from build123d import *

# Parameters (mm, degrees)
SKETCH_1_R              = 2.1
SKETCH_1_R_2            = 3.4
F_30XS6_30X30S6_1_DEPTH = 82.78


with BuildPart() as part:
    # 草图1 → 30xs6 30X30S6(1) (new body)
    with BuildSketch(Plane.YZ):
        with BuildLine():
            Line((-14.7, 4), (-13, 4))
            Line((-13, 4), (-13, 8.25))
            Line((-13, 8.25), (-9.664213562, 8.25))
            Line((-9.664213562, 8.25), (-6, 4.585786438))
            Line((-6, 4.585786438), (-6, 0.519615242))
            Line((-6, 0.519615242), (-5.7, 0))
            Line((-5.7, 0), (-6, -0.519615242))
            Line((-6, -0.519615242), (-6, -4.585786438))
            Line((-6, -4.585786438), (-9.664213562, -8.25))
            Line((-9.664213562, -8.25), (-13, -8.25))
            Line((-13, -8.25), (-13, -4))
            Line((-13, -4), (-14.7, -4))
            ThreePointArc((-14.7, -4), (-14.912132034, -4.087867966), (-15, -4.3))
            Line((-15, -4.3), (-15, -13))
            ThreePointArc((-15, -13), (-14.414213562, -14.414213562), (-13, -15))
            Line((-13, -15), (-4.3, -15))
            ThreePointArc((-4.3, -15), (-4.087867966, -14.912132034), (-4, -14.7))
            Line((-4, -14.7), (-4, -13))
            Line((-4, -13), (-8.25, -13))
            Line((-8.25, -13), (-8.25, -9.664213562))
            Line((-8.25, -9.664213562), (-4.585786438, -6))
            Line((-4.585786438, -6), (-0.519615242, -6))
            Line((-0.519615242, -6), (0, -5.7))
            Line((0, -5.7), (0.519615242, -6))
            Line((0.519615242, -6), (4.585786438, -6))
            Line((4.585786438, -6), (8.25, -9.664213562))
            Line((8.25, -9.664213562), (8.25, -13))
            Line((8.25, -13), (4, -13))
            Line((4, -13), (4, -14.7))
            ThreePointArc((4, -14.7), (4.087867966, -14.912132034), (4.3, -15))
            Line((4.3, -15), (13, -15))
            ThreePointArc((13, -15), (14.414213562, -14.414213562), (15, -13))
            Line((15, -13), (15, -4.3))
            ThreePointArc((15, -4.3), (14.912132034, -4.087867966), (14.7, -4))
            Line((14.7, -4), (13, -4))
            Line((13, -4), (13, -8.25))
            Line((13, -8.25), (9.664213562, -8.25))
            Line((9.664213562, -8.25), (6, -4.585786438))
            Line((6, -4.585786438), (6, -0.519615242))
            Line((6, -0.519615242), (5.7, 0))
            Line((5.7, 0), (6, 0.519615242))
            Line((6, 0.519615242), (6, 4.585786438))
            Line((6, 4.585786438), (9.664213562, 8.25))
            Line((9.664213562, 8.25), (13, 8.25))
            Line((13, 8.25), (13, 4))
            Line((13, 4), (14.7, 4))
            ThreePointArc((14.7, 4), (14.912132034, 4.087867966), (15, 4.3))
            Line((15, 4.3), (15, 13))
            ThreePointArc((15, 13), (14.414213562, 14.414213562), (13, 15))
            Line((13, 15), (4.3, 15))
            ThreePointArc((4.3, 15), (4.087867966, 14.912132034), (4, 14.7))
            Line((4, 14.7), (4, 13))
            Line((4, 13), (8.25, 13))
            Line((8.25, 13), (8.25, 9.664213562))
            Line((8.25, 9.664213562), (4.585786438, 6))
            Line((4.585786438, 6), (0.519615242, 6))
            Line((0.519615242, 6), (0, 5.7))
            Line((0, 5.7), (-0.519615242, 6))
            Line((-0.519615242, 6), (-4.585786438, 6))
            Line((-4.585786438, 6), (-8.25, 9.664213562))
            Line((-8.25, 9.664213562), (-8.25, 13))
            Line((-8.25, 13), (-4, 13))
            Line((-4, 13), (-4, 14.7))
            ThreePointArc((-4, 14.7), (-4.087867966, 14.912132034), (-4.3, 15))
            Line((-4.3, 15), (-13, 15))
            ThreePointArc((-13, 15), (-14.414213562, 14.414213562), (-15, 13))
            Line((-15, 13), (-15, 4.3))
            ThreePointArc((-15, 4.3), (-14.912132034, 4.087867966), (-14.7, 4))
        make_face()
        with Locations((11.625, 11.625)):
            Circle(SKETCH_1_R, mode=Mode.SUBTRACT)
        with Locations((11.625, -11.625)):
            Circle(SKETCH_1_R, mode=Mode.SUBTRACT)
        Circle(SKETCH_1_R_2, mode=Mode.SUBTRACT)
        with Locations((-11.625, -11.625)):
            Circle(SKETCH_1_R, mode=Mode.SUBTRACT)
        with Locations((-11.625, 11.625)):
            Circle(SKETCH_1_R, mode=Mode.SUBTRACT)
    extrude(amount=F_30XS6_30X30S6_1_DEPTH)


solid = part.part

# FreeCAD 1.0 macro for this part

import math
import FreeCAD as App
import Part
import Sketcher

V = App.Vector
Q = App.Units.Quantity

doc = App.newDocument("Part")
body = doc.addObject("PartDesign::Body", "Body")

# Sketch on YZ plane
sketch1 = body.newObject("Sketcher::SketchObject", "Sketch")
sketch1.AttachmentSupport = (doc.getObject("YZ_Plane"), [""])
sketch1.MapMode = "FlatFace"
sketch1.addGeometry([
    Part.LineSegment(V(-14.7, 4, 0), V(-13, 4, 0)),  # 0
    Part.LineSegment(V(-13, 4, 0), V(-13, 8.25, 0)),  # 1
    Part.LineSegment(V(-13, 8.25, 0), V(-9.664214, 8.25, 0)),  # 2
    Part.LineSegment(V(-9.664214, 8.25, 0), V(-6, 4.585786, 0)),  # 3
    Part.LineSegment(V(-6, 4.585786, 0), V(-6, 0.519615, 0)),  # 4
    Part.LineSegment(V(-6, 0.519615, 0), V(-5.7, 0, 0)),  # 5
    Part.LineSegment(V(-5.7, 0, 0), V(-6, -0.519615, 0)),  # 6
    Part.LineSegment(V(-6, -0.519615, 0), V(-6, -4.585786, 0)),  # 7
    Part.LineSegment(V(-6, -4.585786, 0), V(-9.664214, -8.25, 0)),  # 8
    Part.LineSegment(V(-9.664214, -8.25, 0), V(-13, -8.25, 0)),  # 9
    Part.LineSegment(V(-13, -8.25, 0), V(-13, -4, 0)),  # 10
    Part.LineSegment(V(-13, -4, 0), V(-14.7, -4, 0)),  # 11
    Part.ArcOfCircle(Part.Circle(V(-14.7, -4.3, 0), V(0, 0, 1), 0.3), math.radians(90), math.radians(180)),  # 12
    Part.LineSegment(V(-15, -4.3, 0), V(-15, -13, 0)),  # 13
    Part.ArcOfCircle(Part.Circle(V(-13, -13, 0), V(0, 0, 1), 2), math.radians(-180), math.radians(-90)),  # 14
    Part.LineSegment(V(-13, -15, 0), V(-4.3, -15, 0)),  # 15
    Part.ArcOfCircle(Part.Circle(V(-4.3, -14.7, 0), V(0, 0, 1), 0.3), math.radians(-90), math.radians(0)),  # 16
    Part.LineSegment(V(-4, -14.7, 0), V(-4, -13, 0)),  # 17
    Part.LineSegment(V(-4, -13, 0), V(-8.25, -13, 0)),  # 18
    Part.LineSegment(V(-8.25, -13, 0), V(-8.25, -9.664214, 0)),  # 19
    Part.LineSegment(V(-8.25, -9.664214, 0), V(-4.585786, -6, 0)),  # 20
    Part.LineSegment(V(-4.585786, -6, 0), V(-0.519615, -6, 0)),  # 21
    Part.LineSegment(V(-0.519615, -6, 0), V(0, -5.7, 0)),  # 22
    Part.LineSegment(V(0, -5.7, 0), V(0.519615, -6, 0)),  # 23
    Part.LineSegment(V(0.519615, -6, 0), V(4.585786, -6, 0)),  # 24
    Part.LineSegment(V(4.585786, -6, 0), V(8.25, -9.664214, 0)),  # 25
    Part.LineSegment(V(8.25, -9.664214, 0), V(8.25, -13, 0)),  # 26
    Part.LineSegment(V(8.25, -13, 0), V(4, -13, 0)),  # 27
    Part.LineSegment(V(4, -13, 0), V(4, -14.7, 0)),  # 28
    Part.ArcOfCircle(Part.Circle(V(4.3, -14.7, 0), V(0, 0, 1), 0.3), math.radians(-180), math.radians(-90)),  # 29
    Part.LineSegment(V(4.3, -15, 0), V(13, -15, 0)),  # 30
    Part.ArcOfCircle(Part.Circle(V(13, -13, 0), V(0, 0, 1), 2), math.radians(-90), math.radians(0)),  # 31
    Part.LineSegment(V(15, -13, 0), V(15, -4.3, 0)),  # 32
    Part.ArcOfCircle(Part.Circle(V(14.7, -4.3, 0), V(0, 0, 1), 0.3), math.radians(0), math.radians(90)),  # 33
    Part.LineSegment(V(14.7, -4, 0), V(13, -4, 0)),  # 34
    Part.LineSegment(V(13, -4, 0), V(13, -8.25, 0)),  # 35
    Part.LineSegment(V(13, -8.25, 0), V(9.664214, -8.25, 0)),  # 36
    Part.LineSegment(V(9.664214, -8.25, 0), V(6, -4.585786, 0)),  # 37
    Part.LineSegment(V(6, -4.585786, 0), V(6, -0.519615, 0)),  # 38
    Part.LineSegment(V(6, -0.519615, 0), V(5.7, 0, 0)),  # 39
    Part.LineSegment(V(5.7, 0, 0), V(6, 0.519615, 0)),  # 40
    Part.LineSegment(V(6, 0.519615, 0), V(6, 4.585786, 0)),  # 41
    Part.LineSegment(V(6, 4.585786, 0), V(9.664214, 8.25, 0)),  # 42
    Part.LineSegment(V(9.664214, 8.25, 0), V(13, 8.25, 0)),  # 43
    Part.LineSegment(V(13, 8.25, 0), V(13, 4, 0)),  # 44
    Part.LineSegment(V(13, 4, 0), V(14.7, 4, 0)),  # 45
    Part.ArcOfCircle(Part.Circle(V(14.7, 4.3, 0), V(0, 0, 1), 0.3), math.radians(-90), math.radians(0)),  # 46
    Part.LineSegment(V(15, 4.3, 0), V(15, 13, 0)),  # 47
    Part.ArcOfCircle(Part.Circle(V(13, 13, 0), V(0, 0, 1), 2), math.radians(0), math.radians(90)),  # 48
    Part.LineSegment(V(13, 15, 0), V(4.3, 15, 0)),  # 49
    Part.ArcOfCircle(Part.Circle(V(4.3, 14.7, 0), V(0, 0, 1), 0.3), math.radians(90), math.radians(180)),  # 50
    Part.LineSegment(V(4, 14.7, 0), V(4, 13, 0)),  # 51
    Part.LineSegment(V(4, 13, 0), V(8.25, 13, 0)),  # 52
    Part.LineSegment(V(8.25, 13, 0), V(8.25, 9.664214, 0)),  # 53
    Part.LineSegment(V(8.25, 9.664214, 0), V(4.585786, 6, 0)),  # 54
    Part.LineSegment(V(4.585786, 6, 0), V(0.519615, 6, 0)),  # 55
    Part.LineSegment(V(0.519615, 6, 0), V(0, 5.7, 0)),  # 56
    Part.LineSegment(V(0, 5.7, 0), V(-0.519615, 6, 0)),  # 57
    Part.LineSegment(V(-0.519615, 6, 0), V(-4.585786, 6, 0)),  # 58
    Part.LineSegment(V(-4.585786, 6, 0), V(-8.25, 9.664214, 0)),  # 59
    Part.LineSegment(V(-8.25, 9.664214, 0), V(-8.25, 13, 0)),  # 60
    Part.LineSegment(V(-8.25, 13, 0), V(-4, 13, 0)),  # 61
    Part.LineSegment(V(-4, 13, 0), V(-4, 14.7, 0)),  # 62
    Part.ArcOfCircle(Part.Circle(V(-4.3, 14.7, 0), V(0, 0, 1), 0.3), math.radians(0), math.radians(90)),  # 63
    Part.LineSegment(V(-4.3, 15, 0), V(-13, 15, 0)),  # 64
    Part.ArcOfCircle(Part.Circle(V(-13, 13, 0), V(0, 0, 1), 2), math.radians(90), math.radians(180)),  # 65
    Part.LineSegment(V(-15, 13, 0), V(-15, 4.3, 0)),  # 66
    Part.ArcOfCircle(Part.Circle(V(-14.7, 4.3, 0), V(0, 0, 1), 0.3), math.radians(-180), math.radians(-90)),  # 67
    Part.Circle(V(-11.625, -11.625, 0), V(0, 0, 1), 2.1),  # 68
    Part.Circle(V(11.625, -11.625, 0), V(0, 0, 1), 2.1),  # 69
    Part.Circle(V(-11.625, 11.625, 0), V(0, 0, 1), 2.1),  # 70
    Part.Circle(V(0, 0, 0), V(0, 0, 1), 3.4),  # 71
    Part.Circle(V(11.625, 11.625, 0), V(0, 0, 1), 2.1),  # 72
], False)
sketch1.addConstraint([
    Sketcher.Constraint("Coincident", 0, 2, 1, 1),
    Sketcher.Constraint("Coincident", 1, 2, 2, 1),
    Sketcher.Constraint("Coincident", 2, 2, 3, 1),
    Sketcher.Constraint("Coincident", 3, 2, 4, 1),
    Sketcher.Constraint("Coincident", 4, 2, 5, 1),
    Sketcher.Constraint("Coincident", 5, 2, 6, 1),
    Sketcher.Constraint("Coincident", 6, 2, 7, 1),
    Sketcher.Constraint("Coincident", 7, 2, 8, 1),
    Sketcher.Constraint("Coincident", 8, 2, 9, 1),
    Sketcher.Constraint("Coincident", 9, 2, 10, 1),
    Sketcher.Constraint("Coincident", 10, 2, 11, 1),
    Sketcher.Constraint("Tangent", 11, 2, 12, 1),
    Sketcher.Constraint("Tangent", 12, 2, 13, 1),
    Sketcher.Constraint("Tangent", 13, 2, 14, 1),
    Sketcher.Constraint("Tangent", 14, 2, 15, 1),
    Sketcher.Constraint("Tangent", 15, 2, 16, 1),
    Sketcher.Constraint("Tangent", 16, 2, 17, 1),
    Sketcher.Constraint("Coincident", 17, 2, 18, 1),
    Sketcher.Constraint("Coincident", 18, 2, 19, 1),
    Sketcher.Constraint("Coincident", 19, 2, 20, 1),
    Sketcher.Constraint("Coincident", 20, 2, 21, 1),
    Sketcher.Constraint("Coincident", 21, 2, 22, 1),
    Sketcher.Constraint("Coincident", 22, 2, 23, 1),
    Sketcher.Constraint("Coincident", 23, 2, 24, 1),
    Sketcher.Constraint("Coincident", 24, 2, 25, 1),
    Sketcher.Constraint("Coincident", 25, 2, 26, 1),
    Sketcher.Constraint("Coincident", 26, 2, 27, 1),
    Sketcher.Constraint("Coincident", 27, 2, 28, 1),
    Sketcher.Constraint("Tangent", 28, 2, 29, 1),
    Sketcher.Constraint("Tangent", 29, 2, 30, 1),
    Sketcher.Constraint("Tangent", 30, 2, 31, 1),
    Sketcher.Constraint("Tangent", 31, 2, 32, 1),
    Sketcher.Constraint("Tangent", 32, 2, 33, 1),
    Sketcher.Constraint("Tangent", 33, 2, 34, 1),
    Sketcher.Constraint("Coincident", 34, 2, 35, 1),
    Sketcher.Constraint("Coincident", 35, 2, 36, 1),
    Sketcher.Constraint("Coincident", 36, 2, 37, 1),
    Sketcher.Constraint("Coincident", 37, 2, 38, 1),
    Sketcher.Constraint("Coincident", 38, 2, 39, 1),
    Sketcher.Constraint("Coincident", 39, 2, 40, 1),
    Sketcher.Constraint("Coincident", 40, 2, 41, 1),
    Sketcher.Constraint("Coincident", 41, 2, 42, 1),
    Sketcher.Constraint("Coincident", 42, 2, 43, 1),
    Sketcher.Constraint("Coincident", 43, 2, 44, 1),
    Sketcher.Constraint("Coincident", 44, 2, 45, 1),
    Sketcher.Constraint("Tangent", 45, 2, 46, 1),
    Sketcher.Constraint("Tangent", 46, 2, 47, 1),
    Sketcher.Constraint("Tangent", 47, 2, 48, 1),
    Sketcher.Constraint("Tangent", 48, 2, 49, 1),
    Sketcher.Constraint("Tangent", 49, 2, 50, 1),
    Sketcher.Constraint("Tangent", 50, 2, 51, 1),
    Sketcher.Constraint("Coincident", 51, 2, 52, 1),
    Sketcher.Constraint("Coincident", 52, 2, 53, 1),
    Sketcher.Constraint("Coincident", 53, 2, 54, 1),
    Sketcher.Constraint("Coincident", 54, 2, 55, 1),
    Sketcher.Constraint("Coincident", 55, 2, 56, 1),
    Sketcher.Constraint("Coincident", 56, 2, 57, 1),
    Sketcher.Constraint("Coincident", 57, 2, 58, 1),
    Sketcher.Constraint("Coincident", 58, 2, 59, 1),
    Sketcher.Constraint("Coincident", 59, 2, 60, 1),
    Sketcher.Constraint("Coincident", 60, 2, 61, 1),
    Sketcher.Constraint("Coincident", 61, 2, 62, 1),
    Sketcher.Constraint("Tangent", 62, 2, 63, 1),
    Sketcher.Constraint("Tangent", 63, 2, 64, 1),
    Sketcher.Constraint("Tangent", 64, 2, 65, 1),
    Sketcher.Constraint("Tangent", 65, 2, 66, 1),
    Sketcher.Constraint("Tangent", 66, 2, 67, 1),
    Sketcher.Constraint("Tangent", 67, 2, 0, 1),
    Sketcher.Constraint("Horizontal", 0),
    Sketcher.Constraint("Vertical", 1),
    Sketcher.Constraint("Horizontal", 2),
    Sketcher.Constraint("Vertical", 4),
    Sketcher.Constraint("Vertical", 7),
    Sketcher.Constraint("Horizontal", 9),
    Sketcher.Constraint("Vertical", 10),
    Sketcher.Constraint("Horizontal", 11),
    Sketcher.Constraint("Vertical", 13),
    Sketcher.Constraint("Horizontal", 15),
    Sketcher.Constraint("Vertical", 17),
    Sketcher.Constraint("Horizontal", 18),
    Sketcher.Constraint("Vertical", 19),
    Sketcher.Constraint("Horizontal", 21),
    Sketcher.Constraint("Horizontal", 24),
    Sketcher.Constraint("Vertical", 26),
    Sketcher.Constraint("Horizontal", 27),
    Sketcher.Constraint("Vertical", 28),
    Sketcher.Constraint("Horizontal", 30),
    Sketcher.Constraint("Vertical", 32),
    Sketcher.Constraint("Horizontal", 34),
    Sketcher.Constraint("Vertical", 35),
    Sketcher.Constraint("Horizontal", 36),
    Sketcher.Constraint("Vertical", 38),
    Sketcher.Constraint("Vertical", 41),
    Sketcher.Constraint("Horizontal", 43),
    Sketcher.Constraint("Vertical", 44),
    Sketcher.Constraint("Horizontal", 45),
    Sketcher.Constraint("Vertical", 47),
    Sketcher.Constraint("Horizontal", 49),
    Sketcher.Constraint("Vertical", 51),
    Sketcher.Constraint("Horizontal", 52),
    Sketcher.Constraint("Vertical", 53),
    Sketcher.Constraint("Horizontal", 55),
    Sketcher.Constraint("Horizontal", 58),
    Sketcher.Constraint("Vertical", 60),
    Sketcher.Constraint("Horizontal", 61),
    Sketcher.Constraint("Vertical", 62),
    Sketcher.Constraint("Horizontal", 64),
    Sketcher.Constraint("Vertical", 66),
    Sketcher.Constraint("Coincident", 71, 3, -1, 1),
    Sketcher.Constraint("Equal", 12, 16),
    Sketcher.Constraint("Equal", 16, 29),
    Sketcher.Constraint("Equal", 14, 31),
    Sketcher.Constraint("Equal", 29, 33),
    Sketcher.Constraint("Equal", 33, 46),
    Sketcher.Constraint("Equal", 31, 48),
    Sketcher.Constraint("Equal", 46, 50),
    Sketcher.Constraint("Equal", 50, 63),
    Sketcher.Constraint("Equal", 48, 65),
    Sketcher.Constraint("Equal", 63, 67),
    Sketcher.Constraint("Equal", 68, 69),
    Sketcher.Constraint("Equal", 69, 70),
    Sketcher.Constraint("Equal", 70, 72),
    Sketcher.Constraint("Symmetric", 12, 3, 46, 3, -1, 1),
    Sketcher.Constraint("Symmetric", 16, 3, 50, 3, -1, 1),
    Sketcher.Constraint("Symmetric", 29, 3, 63, 3, -1, 1),
    Sketcher.Constraint("Symmetric", 33, 3, 67, 3, -1, 1),
    Sketcher.Constraint("Symmetric", 69, 3, 70, 3, -1, 1),
    Sketcher.Constraint("Symmetric", 68, 3, 72, 3, -1, 1),
    Sketcher.Constraint("Symmetric", 1, 2, 35, 2, -1, 1),
    Sketcher.Constraint("Symmetric", 3, 2, 37, 2, -1, 1),
    Sketcher.Constraint("Symmetric", 5, 2, 39, 2, -1, 1),
    Sketcher.Constraint("Symmetric", 6, 2, 40, 2, -1, 1),
    Sketcher.Constraint("Symmetric", 8, 2, 42, 2, -1, 1),
    Sketcher.Constraint("Symmetric", 18, 2, 52, 2, -1, 1),
    Sketcher.Constraint("Symmetric", 20, 2, 54, 2, -1, 1),
    Sketcher.Constraint("Symmetric", 22, 2, 56, 2, -1, 1),
    Sketcher.Constraint("Symmetric", 23, 2, 57, 2, -1, 1),
    Sketcher.Constraint("Symmetric", 25, 2, 59, 2, -1, 1),
    Sketcher.Constraint("Symmetric", 16, 3, 29, 3, -2),
    Sketcher.Constraint("Symmetric", 12, 3, 33, 3, -2),
    Sketcher.Constraint("Symmetric", 68, 3, 69, 3, -2),
    Sketcher.Constraint("Symmetric", 21, 2, 23, 2, -2),
    Sketcher.Constraint("Symmetric", 19, 2, 25, 2, -2),
    Sketcher.Constraint("Symmetric", 9, 2, 35, 2, -2),
    Sketcher.Constraint("Symmetric", 7, 2, 37, 2, -2),
    Sketcher.Constraint("PointOnObject", 5, 2, -1),
    Sketcher.Constraint("PointOnObject", 22, 2, -2),
    Sketcher.Constraint("Perpendicular", 3, 8),
    Sketcher.Constraint("Parallel", 8, 20),
    Sketcher.Constraint("Perpendicular", 5, 22),
    Sketcher.Constraint("Perpendicular", 6, 23),
    Sketcher.Constraint("Perpendicular", 20, 25),
    Sketcher.Constraint("Parallel", 25, 37),
    Sketcher.Constraint("Perpendicular", 22, 39),
    Sketcher.Constraint("Perpendicular", 37, 42),
    Sketcher.Constraint("Parallel", 42, 54),
    Sketcher.Constraint("Perpendicular", 39, 56),
    Sketcher.Constraint("Perpendicular", 54, 59),
    Sketcher.Constraint("Horizontal", 13, 2, 17, 2),
    Sketcher.Constraint("Horizontal", 18, 2, 26, 2),
    Sketcher.Constraint("Horizontal", 52, 2, 60, 2),
    Sketcher.Constraint("Vertical", 65, 3, 0, 2),
    Sketcher.Constraint("Vertical", 2, 2, 8, 2),
    Sketcher.Constraint("Vertical", 35, 2, 43, 2),
    Sketcher.Constraint("Equal", 61, 1),
    Sketcher.Constraint("Equal", 58, 4),
    Sketcher.Constraint("Equal", 64, 13),
    Sketcher.Constraint("Equal", 43, 19),
    Sketcher.Constraint("Equal", 8, 20),
    Sketcher.Constraint("Equal", 6, 22),
    Sketcher.Constraint("Radius", 14, Q("2 mm")),
    Sketcher.Constraint("Diameter", 68, Q("4.2 mm")),
    Sketcher.Constraint("Diameter", 71, Q("6.8 mm")),
    Sketcher.Constraint("Radius", 12, Q("0.3 mm")),
    Sketcher.Constraint("Angle", 5, Q("-60 deg")),
    Sketcher.Constraint("DistanceX", 15, 1, 15, 2, Q("8.7 mm")),
    Sketcher.Constraint("DistanceX", 14, 3, -1, 1, Q("13 mm")),
    Sketcher.Constraint("DistanceX", 3, 2, -1, 1, Q("6 mm")),
    Sketcher.Constraint("Distance", 5, Q("0.6 mm")),
    Sketcher.Constraint("DistanceX", 18, 2, 18, 1, Q("4.25 mm")),
    Sketcher.Constraint("DistanceX", 68, 3, -1, 1, Q("11.625 mm")),
    Sketcher.Constraint("DistanceY", 68, 3, -1, 1, Q("11.625 mm")),
    Sketcher.Constraint("DistanceX", 21, 1, 21, 2, Q("4.066171 mm")),
])
pad1 = body.newObject("PartDesign::Pad", "Pad")
pad1.Profile = sketch1
pad1.Length = 82.78

doc.recompute()
